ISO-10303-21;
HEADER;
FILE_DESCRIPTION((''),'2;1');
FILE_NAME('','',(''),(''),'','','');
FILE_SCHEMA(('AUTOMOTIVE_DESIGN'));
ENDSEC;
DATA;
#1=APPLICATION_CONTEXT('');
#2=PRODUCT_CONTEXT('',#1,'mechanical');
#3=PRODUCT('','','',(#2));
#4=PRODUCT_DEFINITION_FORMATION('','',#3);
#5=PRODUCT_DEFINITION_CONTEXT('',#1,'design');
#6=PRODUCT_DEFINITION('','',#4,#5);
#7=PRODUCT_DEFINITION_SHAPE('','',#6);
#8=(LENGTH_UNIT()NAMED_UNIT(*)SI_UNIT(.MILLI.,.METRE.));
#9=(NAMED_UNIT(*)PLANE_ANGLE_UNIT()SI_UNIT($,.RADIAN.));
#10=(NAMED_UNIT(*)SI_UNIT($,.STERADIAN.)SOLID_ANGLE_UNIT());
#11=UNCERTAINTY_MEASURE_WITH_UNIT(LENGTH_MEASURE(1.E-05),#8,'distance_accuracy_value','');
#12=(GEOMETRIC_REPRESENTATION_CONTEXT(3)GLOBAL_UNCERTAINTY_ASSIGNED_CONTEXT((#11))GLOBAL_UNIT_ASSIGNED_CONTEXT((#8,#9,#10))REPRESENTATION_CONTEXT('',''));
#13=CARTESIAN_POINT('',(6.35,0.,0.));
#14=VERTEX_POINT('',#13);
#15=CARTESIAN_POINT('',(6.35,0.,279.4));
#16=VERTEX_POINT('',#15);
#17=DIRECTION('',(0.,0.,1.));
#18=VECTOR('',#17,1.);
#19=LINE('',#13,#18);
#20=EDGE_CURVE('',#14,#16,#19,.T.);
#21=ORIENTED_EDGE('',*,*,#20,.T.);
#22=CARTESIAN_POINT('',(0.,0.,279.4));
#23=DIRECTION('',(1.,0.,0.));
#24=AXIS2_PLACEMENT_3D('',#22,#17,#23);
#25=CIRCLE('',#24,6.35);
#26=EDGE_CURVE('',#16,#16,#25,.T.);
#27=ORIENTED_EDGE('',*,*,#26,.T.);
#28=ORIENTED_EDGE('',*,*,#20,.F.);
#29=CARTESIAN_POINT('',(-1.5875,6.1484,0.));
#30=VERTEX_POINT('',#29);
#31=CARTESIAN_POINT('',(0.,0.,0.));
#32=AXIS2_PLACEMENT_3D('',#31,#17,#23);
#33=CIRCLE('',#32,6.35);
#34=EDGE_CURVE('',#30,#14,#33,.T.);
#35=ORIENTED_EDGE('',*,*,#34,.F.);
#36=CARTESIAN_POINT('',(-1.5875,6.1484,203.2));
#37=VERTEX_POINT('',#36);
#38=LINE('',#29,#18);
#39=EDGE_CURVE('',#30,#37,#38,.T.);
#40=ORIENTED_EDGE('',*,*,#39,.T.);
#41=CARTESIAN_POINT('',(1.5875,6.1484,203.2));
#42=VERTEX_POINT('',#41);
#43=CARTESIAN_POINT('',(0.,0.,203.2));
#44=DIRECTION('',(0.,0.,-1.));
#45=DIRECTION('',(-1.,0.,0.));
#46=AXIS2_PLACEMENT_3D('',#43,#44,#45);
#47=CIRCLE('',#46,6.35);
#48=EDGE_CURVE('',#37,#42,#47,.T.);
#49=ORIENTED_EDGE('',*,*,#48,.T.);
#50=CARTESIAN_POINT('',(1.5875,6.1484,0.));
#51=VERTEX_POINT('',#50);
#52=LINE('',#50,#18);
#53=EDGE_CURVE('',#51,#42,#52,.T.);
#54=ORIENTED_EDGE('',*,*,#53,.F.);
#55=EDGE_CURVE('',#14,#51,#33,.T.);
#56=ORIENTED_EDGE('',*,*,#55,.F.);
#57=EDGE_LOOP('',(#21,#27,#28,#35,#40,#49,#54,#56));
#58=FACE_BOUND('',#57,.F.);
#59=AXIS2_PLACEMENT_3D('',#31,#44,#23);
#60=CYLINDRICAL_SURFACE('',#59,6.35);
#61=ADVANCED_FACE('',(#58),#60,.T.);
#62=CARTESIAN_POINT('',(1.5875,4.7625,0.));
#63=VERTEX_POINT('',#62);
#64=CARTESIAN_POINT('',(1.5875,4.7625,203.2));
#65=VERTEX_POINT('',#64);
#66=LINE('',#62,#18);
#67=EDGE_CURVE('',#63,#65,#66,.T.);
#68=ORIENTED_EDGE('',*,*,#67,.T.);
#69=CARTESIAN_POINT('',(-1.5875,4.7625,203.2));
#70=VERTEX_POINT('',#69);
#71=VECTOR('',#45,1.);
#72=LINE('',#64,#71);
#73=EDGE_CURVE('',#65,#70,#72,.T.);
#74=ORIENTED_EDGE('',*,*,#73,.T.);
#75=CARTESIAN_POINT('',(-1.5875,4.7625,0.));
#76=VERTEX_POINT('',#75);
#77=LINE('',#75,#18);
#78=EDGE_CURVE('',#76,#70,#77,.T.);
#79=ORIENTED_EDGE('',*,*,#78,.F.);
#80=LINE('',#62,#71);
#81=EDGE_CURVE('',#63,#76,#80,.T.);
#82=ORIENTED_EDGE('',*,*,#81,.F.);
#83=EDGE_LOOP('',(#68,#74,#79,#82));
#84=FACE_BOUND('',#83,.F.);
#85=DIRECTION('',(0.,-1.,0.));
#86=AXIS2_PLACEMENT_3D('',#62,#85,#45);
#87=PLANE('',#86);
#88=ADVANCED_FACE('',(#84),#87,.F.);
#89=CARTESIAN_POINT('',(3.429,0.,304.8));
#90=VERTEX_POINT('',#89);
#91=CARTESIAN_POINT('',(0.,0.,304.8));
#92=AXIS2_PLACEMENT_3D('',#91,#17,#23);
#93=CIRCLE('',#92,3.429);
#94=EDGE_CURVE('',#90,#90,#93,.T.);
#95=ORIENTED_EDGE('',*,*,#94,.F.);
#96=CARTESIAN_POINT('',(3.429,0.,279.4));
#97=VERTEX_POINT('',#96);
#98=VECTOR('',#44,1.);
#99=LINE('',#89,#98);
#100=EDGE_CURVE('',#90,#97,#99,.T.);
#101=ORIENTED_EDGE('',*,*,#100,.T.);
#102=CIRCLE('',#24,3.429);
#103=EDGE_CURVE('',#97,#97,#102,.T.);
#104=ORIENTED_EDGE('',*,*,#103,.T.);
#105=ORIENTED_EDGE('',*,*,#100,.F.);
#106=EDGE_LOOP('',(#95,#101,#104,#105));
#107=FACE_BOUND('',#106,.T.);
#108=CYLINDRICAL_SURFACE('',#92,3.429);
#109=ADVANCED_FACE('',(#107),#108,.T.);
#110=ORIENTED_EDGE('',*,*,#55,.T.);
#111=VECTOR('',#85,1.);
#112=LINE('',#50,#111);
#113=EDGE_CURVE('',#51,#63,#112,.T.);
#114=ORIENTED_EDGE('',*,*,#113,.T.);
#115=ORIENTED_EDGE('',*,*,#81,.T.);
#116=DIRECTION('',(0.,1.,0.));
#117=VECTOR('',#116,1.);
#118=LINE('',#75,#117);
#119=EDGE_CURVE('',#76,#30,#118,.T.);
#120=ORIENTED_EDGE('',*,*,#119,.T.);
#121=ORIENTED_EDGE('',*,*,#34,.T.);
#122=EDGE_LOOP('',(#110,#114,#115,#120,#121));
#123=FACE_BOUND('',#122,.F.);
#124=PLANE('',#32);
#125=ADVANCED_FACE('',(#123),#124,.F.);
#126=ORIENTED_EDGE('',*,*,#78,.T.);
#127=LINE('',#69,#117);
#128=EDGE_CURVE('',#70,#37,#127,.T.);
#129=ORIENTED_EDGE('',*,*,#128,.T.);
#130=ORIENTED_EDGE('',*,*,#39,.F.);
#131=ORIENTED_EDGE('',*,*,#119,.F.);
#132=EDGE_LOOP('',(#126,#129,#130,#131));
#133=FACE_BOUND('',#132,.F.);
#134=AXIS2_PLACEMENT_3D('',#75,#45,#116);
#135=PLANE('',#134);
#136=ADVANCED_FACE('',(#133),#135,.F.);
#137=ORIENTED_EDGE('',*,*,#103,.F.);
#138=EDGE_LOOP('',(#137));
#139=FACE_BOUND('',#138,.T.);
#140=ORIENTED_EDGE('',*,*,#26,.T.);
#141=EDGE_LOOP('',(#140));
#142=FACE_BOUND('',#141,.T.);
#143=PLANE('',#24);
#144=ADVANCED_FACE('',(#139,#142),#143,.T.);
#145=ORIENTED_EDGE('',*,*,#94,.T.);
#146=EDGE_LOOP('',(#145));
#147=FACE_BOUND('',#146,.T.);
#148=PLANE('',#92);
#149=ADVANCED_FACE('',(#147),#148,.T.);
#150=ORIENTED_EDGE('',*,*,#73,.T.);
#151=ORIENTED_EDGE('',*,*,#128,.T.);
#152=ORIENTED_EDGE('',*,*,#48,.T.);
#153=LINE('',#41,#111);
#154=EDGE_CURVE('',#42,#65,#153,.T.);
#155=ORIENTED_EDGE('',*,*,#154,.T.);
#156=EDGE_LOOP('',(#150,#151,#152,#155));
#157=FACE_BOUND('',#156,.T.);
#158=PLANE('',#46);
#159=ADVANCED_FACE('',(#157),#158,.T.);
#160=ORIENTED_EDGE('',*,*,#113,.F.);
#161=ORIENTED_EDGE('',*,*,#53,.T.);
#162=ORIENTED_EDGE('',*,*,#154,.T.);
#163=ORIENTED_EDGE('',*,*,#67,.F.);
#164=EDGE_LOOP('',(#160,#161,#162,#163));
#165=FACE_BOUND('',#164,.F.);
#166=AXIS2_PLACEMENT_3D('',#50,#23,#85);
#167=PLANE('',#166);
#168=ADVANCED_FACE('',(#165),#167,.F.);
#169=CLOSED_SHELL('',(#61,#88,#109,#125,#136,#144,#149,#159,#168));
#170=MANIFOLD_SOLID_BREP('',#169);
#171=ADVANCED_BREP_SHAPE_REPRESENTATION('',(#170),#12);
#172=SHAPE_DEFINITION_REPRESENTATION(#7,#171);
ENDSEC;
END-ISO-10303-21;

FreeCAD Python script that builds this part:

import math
import FreeCAD as App
import Part
import Sketcher
Q = App.Units.Quantity

doc = App.newDocument("Part")
body = doc.addObject("PartDesign::Body", "Body")

# Sketch on XY plane
sketch1 = body.newObject("Sketcher::SketchObject", "Sketch")
sketch1.AttachmentSupport = (doc.getObject("XY_Plane"), [""])
sketch1.MapMode = "FlatFace"
sketch1.addGeometry(Part.Circle(App.Vector(0, 0, 0), App.Vector(0, 0, 1), 6), False)
sketch1.addConstraint(Sketcher.Constraint("Coincident", 0, 3, -1, 1))
sketch1.addConstraint(Sketcher.Constraint("Diameter", 0, Q("0.5 in")))
pad1 = body.newObject("PartDesign::Pad", "Pad")
pad1.Profile = sketch1
pad1.Length = Q("12 in")

# Sketch on XY plane
sketch2 = body.newObject("Sketcher::SketchObject", "Sketch001")
sketch2.AttachmentSupport = (doc.getObject("XY_Plane"), [""])
sketch2.MapMode = "FlatFace"
sketch2.AttachmentOffset = App.Placement(App.Vector(0, 0, 12 * 25.4), App.Rotation())
sketch2.addGeometry(Part.Circle(App.Vector(0, 0, 0), App.Vector(0, 0, 1), 6.3), False)
sketch2.addGeometry(Part.Circle(App.Vector(0, 0, 0), App.Vector(0, 0, 1), 3.4), False)
sketch2.addConstraint(Sketcher.Constraint("Coincident", 0, 3, -1, 1))
sketch2.addConstraint(Sketcher.Constraint("Coincident", 1, 3, -1, 1))
sketch2.addConstraint(Sketcher.Constraint("Diameter", 1, Q("0.27 in")))
sketch2.addConstraint(Sketcher.Constraint("Diameter", 0, Q("0.5 in")))
pocket1 = body.newObject("PartDesign::Pocket", "Pocket")
pocket1.Profile = sketch2
pocket1.Length = Q("1 in")

# Sketch on XY plane
sketch3 = body.newObject("Sketcher::SketchObject", "Sketch002")
sketch3.AttachmentSupport = (doc.getObject("XY_Plane"), [""])
sketch3.MapMode = "FlatFace"
sketch3.addGeometry(Part.LineSegment(App.Vector(-1.6, 4.8, 0), App.Vector(-1.6, 6.1, 0)), False)
sketch3.addGeometry(Part.ArcOfCircle(Part.Circle(App.Vector(0, 0, 0), App.Vector(0, 0, 1), 6.3), math.radians(76), math.radians(104)), False)
sketch3.addGeometry(Part.LineSegment(App.Vector(1.6, 6.1, 0), App.Vector(1.6, 4.8, 0)), False)
sketch3.addGeometry(Part.LineSegment(App.Vector(1.6, 4.8, 0), App.Vector(-1.6, 4.8, 0)), False)
sketch3.addConstraint(Sketcher.Constraint("Coincident", 0, 2, 1, 2))
sketch3.addConstraint(Sketcher.Constraint("Coincident", 1, 1, 2, 1))
sketch3.addConstraint(Sketcher.Constraint("Coincident", 2, 2, 3, 1))
sketch3.addConstraint(Sketcher.Constraint("Coincident", 3, 2, 0, 1))
sketch3.addConstraint(Sketcher.Constraint("Vertical", 0))
sketch3.addConstraint(Sketcher.Constraint("Vertical", 2))
sketch3.addConstraint(Sketcher.Constraint("Horizontal", 3))
sketch3.addConstraint(Sketcher.Constraint("Coincident", 1, 3, -1, 1))
sketch3.addConstraint(Sketcher.Constraint("Horizontal", 0, 2, 1, 1))
sketch3.addConstraint(Sketcher.Constraint("DistanceX", 3, 2, 3, 1, Q("0.125 in")))
sketch3.addConstraint(Sketcher.Constraint("Radius", 1, Q("0.25 in")))
sketch3.addConstraint(Sketcher.Constraint("DistanceY", -1, 1, 2, 2, Q("0.1875 in")))
pocket2 = body.newObject("PartDesign::Pocket", "Pocket001")
pocket2.Profile = sketch3
pocket2.Length = Q("8 in")
pocket2.Reversed = True

doc.recompute()
